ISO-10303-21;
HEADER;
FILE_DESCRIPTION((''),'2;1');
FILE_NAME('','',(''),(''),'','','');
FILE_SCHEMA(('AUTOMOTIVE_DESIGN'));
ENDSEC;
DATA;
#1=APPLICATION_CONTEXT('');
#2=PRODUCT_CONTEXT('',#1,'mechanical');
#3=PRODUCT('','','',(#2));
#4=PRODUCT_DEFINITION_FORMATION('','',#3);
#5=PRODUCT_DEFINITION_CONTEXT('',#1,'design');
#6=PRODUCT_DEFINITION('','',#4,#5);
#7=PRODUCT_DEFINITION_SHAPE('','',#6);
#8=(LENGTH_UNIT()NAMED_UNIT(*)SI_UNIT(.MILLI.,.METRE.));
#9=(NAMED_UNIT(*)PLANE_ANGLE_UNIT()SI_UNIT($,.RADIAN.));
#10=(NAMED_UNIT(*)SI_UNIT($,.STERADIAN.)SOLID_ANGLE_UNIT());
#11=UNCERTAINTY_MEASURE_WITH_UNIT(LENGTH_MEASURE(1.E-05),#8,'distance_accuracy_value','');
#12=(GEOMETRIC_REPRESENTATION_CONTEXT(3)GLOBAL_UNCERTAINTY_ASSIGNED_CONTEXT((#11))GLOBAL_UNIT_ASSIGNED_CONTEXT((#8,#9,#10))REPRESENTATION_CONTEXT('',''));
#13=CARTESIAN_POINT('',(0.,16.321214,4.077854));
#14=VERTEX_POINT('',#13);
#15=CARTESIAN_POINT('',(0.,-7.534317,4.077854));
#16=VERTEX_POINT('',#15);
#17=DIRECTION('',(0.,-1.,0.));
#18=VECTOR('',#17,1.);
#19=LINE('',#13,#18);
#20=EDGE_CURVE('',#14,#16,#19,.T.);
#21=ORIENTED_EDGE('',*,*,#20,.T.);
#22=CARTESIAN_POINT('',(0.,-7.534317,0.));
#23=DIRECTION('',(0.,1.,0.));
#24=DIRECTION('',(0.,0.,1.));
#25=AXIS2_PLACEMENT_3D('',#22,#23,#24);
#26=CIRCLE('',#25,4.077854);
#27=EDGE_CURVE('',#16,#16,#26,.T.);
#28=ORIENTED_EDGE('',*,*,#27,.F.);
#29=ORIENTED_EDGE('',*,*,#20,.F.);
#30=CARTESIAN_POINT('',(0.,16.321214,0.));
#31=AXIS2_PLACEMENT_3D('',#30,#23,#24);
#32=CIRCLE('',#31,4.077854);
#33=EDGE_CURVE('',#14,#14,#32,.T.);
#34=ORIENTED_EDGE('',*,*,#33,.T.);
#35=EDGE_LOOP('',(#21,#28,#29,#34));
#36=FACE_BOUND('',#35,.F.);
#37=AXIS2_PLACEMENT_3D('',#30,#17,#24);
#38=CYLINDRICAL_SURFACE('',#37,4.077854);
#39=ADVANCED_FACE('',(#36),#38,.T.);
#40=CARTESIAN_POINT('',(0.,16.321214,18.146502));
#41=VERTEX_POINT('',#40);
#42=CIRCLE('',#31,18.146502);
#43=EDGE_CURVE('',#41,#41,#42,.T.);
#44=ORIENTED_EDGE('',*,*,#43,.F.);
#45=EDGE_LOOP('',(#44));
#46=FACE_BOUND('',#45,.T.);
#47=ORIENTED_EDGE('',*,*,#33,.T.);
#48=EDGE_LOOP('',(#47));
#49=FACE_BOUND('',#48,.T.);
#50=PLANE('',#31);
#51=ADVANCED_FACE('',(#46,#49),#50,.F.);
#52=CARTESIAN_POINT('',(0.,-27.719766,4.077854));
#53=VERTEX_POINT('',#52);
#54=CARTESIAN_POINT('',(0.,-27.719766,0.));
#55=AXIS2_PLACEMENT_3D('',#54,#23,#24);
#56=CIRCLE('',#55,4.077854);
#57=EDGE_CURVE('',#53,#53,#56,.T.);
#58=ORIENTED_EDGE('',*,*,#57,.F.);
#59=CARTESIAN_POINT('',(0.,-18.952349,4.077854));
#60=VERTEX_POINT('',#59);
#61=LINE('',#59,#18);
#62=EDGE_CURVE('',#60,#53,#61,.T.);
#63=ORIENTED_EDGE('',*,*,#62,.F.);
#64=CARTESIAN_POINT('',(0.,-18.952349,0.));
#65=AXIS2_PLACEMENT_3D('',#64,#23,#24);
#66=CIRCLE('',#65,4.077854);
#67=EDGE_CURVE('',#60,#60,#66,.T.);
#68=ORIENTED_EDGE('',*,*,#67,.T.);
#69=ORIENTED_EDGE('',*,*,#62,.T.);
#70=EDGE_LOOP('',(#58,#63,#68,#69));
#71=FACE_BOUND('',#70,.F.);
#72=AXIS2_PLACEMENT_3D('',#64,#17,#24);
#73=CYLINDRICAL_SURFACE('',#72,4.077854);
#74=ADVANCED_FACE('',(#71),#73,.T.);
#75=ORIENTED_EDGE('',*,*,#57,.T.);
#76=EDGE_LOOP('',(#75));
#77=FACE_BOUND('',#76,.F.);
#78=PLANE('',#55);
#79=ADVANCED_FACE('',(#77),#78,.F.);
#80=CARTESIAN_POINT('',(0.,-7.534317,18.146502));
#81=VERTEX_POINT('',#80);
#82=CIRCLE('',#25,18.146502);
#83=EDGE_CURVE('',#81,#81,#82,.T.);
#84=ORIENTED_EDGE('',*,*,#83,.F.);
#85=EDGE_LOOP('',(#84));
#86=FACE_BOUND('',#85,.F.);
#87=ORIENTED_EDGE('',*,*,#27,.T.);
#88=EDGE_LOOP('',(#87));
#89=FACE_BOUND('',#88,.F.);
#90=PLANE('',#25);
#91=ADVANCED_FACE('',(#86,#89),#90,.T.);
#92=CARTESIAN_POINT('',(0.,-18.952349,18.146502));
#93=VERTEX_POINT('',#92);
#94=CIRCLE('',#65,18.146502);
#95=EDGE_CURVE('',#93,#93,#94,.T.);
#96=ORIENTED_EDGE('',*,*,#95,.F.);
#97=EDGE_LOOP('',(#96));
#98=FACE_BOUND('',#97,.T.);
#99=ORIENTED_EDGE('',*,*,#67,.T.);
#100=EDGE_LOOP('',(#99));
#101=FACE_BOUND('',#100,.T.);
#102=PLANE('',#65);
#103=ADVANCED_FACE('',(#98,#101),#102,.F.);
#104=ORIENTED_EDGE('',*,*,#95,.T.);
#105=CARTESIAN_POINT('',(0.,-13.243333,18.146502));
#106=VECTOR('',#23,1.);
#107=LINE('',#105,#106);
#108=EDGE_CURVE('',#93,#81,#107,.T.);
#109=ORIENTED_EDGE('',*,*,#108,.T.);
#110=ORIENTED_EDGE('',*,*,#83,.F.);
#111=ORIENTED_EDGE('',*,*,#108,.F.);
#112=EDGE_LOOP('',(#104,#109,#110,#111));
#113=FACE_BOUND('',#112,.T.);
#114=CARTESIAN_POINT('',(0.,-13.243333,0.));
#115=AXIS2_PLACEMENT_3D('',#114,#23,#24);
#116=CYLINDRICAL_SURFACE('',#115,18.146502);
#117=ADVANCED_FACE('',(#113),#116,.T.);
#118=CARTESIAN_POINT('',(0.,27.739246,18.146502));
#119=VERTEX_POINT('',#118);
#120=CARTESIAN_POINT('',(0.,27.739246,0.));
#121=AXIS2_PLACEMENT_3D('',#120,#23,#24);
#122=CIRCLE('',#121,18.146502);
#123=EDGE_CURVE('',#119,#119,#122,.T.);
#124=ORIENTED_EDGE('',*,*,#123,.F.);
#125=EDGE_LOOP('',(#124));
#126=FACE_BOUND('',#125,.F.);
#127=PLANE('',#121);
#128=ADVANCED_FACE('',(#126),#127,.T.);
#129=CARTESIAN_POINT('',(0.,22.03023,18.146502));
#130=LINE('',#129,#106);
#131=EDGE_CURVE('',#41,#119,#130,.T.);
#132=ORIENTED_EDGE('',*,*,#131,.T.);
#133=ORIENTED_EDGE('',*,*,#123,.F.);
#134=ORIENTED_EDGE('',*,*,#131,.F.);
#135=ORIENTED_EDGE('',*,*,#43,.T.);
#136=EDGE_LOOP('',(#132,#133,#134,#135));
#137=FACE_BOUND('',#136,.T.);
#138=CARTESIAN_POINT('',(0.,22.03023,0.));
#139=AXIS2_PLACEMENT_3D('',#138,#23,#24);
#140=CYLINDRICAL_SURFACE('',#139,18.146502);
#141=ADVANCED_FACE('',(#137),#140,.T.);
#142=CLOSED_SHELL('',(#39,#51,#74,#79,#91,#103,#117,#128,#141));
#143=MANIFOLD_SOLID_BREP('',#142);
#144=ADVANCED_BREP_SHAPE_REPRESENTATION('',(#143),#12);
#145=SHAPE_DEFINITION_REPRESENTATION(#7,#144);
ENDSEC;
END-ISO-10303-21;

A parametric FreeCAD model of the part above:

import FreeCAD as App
import Part
import Sketcher

V = App.Vector

doc = App.newDocument("Part")
body = doc.addObject("PartDesign::Body", "Body")

sketch1 = body.newObject("Sketcher::SketchObject", "Sketch")
sketch1.AttachmentSupport = (doc.getObject("YZ_Plane"), [""])
sketch1.MapMode = "FlatFace"
sketch1.addGeometry(Part.LineSegment(V(-18.952349, 18.146502, 0), V(-18.952349, 4.077854, 0)), False)
sketch1.addGeometry(Part.LineSegment(V(-18.952349, 4.077854, 0), V(-27.719766, 4.077854, 0)), False)
sketch1.addGeometry(Part.LineSegment(V(-27.719766, 4.077854, 0), V(-27.719766, 0, 0)), False)
sketch1.addGeometry(Part.LineSegment(V(-27.719766, 0, 0), V(27.739246, 0, 0)), False)
sketch1.addGeometry(Part.LineSegment(V(27.739246, 0, 0), V(27.739246, 18.146502, 0)), False)
sketch1.addGeometry(Part.LineSegment(V(27.739246, 18.146502, 0), V(16.321214, 18.146502, 0)), False)
sketch1.addGeometry(Part.LineSegment(V(16.321214, 18.146502, 0), V(16.321214, 4.077854, 0)), False)
sketch1.addGeometry(Part.LineSegment(V(16.321214, 4.077854, 0), V(-7.534317, 4.077854, 0)), False)
sketch1.addGeometry(Part.LineSegment(V(-7.534317, 4.077854, 0), V(-7.534317, 18.146502, 0)), False)
sketch1.addGeometry(Part.LineSegment(V(-7.534317, 18.146502, 0), V(-18.952349, 18.146502, 0)), False)
sketch1.addConstraint(Sketcher.Constraint("Coincident", 0, 2, 1, 1))
sketch1.addConstraint(Sketcher.Constraint("Coincident", 1, 2, 2, 1))
sketch1.addConstraint(Sketcher.Constraint("Coincident", 2, 2, 3, 1))
sketch1.addConstraint(Sketcher.Constraint("Coincident", 3, 2, 4, 1))
sketch1.addConstraint(Sketcher.Constraint("Coincident", 4, 2, 5, 1))
sketch1.addConstraint(Sketcher.Constraint("Coincident", 5, 2, 6, 1))
sketch1.addConstraint(Sketcher.Constraint("Coincident", 6, 2, 7, 1))
sketch1.addConstraint(Sketcher.Constraint("Coincident", 7, 2, 8, 1))
sketch1.addConstraint(Sketcher.Constraint("Coincident", 8, 2, 9, 1))
sketch1.addConstraint(Sketcher.Constraint("Coincident", 9, 2, 0, 1))
sketch1.addConstraint(Sketcher.Constraint("Vertical", 0))
sketch1.addConstraint(Sketcher.Constraint("Horizontal", 1))
sketch1.addConstraint(Sketcher.Constraint("Vertical", 2))
sketch1.addConstraint(Sketcher.Constraint("Horizontal", 3))
sketch1.addConstraint(Sketcher.Constraint("Vertical", 4))
sketch1.addConstraint(Sketcher.Constraint("Horizontal", 5))
sketch1.addConstraint(Sketcher.Constraint("Vertical", 6))
sketch1.addConstraint(Sketcher.Constraint("Horizontal", 7))
sketch1.addConstraint(Sketcher.Constraint("Vertical", 8))
sketch1.addConstraint(Sketcher.Constraint("Horizontal", 9))
sketch1.addConstraint(Sketcher.Constraint("PointOnObject", 2, 2, -1))
sketch1.addConstraint(Sketcher.Constraint("Horizontal", 1, 2, 6, 2))
sketch1.addConstraint(Sketcher.Constraint("Horizontal", 5, 2, 8, 2))
sketch1.addConstraint(Sketcher.Constraint("Equal", 5, 9))
sketch1.addConstraint(Sketcher.Constraint("DistanceX", 7, 2, 7, 1, 23.855531))
sketch1.addConstraint(Sketcher.Constraint("DistanceY", 0, 2, 0, 1, 14.068648))
sketch1.addConstraint(Sketcher.Constraint("DistanceX", 1, 2, 1, 1, 8.767417))
sketch1.addConstraint(Sketcher.Constraint("DistanceX", 3, 1, 3, 2, 55.459012))
sketch1.addConstraint(Sketcher.Constraint("DistanceY", 2, 2, 2, 1, 4.077854))
sketch1.addConstraint(Sketcher.Constraint("DistanceX", 0, 2, -1, 1, 18.952349))
revolution = body.newObject("PartDesign::Revolution", "Revolution")
revolution.Profile = sketch1
revolution.ReferenceAxis = (sketch1, ["H_Axis"])
revolution.Angle = 360

doc.recompute()
